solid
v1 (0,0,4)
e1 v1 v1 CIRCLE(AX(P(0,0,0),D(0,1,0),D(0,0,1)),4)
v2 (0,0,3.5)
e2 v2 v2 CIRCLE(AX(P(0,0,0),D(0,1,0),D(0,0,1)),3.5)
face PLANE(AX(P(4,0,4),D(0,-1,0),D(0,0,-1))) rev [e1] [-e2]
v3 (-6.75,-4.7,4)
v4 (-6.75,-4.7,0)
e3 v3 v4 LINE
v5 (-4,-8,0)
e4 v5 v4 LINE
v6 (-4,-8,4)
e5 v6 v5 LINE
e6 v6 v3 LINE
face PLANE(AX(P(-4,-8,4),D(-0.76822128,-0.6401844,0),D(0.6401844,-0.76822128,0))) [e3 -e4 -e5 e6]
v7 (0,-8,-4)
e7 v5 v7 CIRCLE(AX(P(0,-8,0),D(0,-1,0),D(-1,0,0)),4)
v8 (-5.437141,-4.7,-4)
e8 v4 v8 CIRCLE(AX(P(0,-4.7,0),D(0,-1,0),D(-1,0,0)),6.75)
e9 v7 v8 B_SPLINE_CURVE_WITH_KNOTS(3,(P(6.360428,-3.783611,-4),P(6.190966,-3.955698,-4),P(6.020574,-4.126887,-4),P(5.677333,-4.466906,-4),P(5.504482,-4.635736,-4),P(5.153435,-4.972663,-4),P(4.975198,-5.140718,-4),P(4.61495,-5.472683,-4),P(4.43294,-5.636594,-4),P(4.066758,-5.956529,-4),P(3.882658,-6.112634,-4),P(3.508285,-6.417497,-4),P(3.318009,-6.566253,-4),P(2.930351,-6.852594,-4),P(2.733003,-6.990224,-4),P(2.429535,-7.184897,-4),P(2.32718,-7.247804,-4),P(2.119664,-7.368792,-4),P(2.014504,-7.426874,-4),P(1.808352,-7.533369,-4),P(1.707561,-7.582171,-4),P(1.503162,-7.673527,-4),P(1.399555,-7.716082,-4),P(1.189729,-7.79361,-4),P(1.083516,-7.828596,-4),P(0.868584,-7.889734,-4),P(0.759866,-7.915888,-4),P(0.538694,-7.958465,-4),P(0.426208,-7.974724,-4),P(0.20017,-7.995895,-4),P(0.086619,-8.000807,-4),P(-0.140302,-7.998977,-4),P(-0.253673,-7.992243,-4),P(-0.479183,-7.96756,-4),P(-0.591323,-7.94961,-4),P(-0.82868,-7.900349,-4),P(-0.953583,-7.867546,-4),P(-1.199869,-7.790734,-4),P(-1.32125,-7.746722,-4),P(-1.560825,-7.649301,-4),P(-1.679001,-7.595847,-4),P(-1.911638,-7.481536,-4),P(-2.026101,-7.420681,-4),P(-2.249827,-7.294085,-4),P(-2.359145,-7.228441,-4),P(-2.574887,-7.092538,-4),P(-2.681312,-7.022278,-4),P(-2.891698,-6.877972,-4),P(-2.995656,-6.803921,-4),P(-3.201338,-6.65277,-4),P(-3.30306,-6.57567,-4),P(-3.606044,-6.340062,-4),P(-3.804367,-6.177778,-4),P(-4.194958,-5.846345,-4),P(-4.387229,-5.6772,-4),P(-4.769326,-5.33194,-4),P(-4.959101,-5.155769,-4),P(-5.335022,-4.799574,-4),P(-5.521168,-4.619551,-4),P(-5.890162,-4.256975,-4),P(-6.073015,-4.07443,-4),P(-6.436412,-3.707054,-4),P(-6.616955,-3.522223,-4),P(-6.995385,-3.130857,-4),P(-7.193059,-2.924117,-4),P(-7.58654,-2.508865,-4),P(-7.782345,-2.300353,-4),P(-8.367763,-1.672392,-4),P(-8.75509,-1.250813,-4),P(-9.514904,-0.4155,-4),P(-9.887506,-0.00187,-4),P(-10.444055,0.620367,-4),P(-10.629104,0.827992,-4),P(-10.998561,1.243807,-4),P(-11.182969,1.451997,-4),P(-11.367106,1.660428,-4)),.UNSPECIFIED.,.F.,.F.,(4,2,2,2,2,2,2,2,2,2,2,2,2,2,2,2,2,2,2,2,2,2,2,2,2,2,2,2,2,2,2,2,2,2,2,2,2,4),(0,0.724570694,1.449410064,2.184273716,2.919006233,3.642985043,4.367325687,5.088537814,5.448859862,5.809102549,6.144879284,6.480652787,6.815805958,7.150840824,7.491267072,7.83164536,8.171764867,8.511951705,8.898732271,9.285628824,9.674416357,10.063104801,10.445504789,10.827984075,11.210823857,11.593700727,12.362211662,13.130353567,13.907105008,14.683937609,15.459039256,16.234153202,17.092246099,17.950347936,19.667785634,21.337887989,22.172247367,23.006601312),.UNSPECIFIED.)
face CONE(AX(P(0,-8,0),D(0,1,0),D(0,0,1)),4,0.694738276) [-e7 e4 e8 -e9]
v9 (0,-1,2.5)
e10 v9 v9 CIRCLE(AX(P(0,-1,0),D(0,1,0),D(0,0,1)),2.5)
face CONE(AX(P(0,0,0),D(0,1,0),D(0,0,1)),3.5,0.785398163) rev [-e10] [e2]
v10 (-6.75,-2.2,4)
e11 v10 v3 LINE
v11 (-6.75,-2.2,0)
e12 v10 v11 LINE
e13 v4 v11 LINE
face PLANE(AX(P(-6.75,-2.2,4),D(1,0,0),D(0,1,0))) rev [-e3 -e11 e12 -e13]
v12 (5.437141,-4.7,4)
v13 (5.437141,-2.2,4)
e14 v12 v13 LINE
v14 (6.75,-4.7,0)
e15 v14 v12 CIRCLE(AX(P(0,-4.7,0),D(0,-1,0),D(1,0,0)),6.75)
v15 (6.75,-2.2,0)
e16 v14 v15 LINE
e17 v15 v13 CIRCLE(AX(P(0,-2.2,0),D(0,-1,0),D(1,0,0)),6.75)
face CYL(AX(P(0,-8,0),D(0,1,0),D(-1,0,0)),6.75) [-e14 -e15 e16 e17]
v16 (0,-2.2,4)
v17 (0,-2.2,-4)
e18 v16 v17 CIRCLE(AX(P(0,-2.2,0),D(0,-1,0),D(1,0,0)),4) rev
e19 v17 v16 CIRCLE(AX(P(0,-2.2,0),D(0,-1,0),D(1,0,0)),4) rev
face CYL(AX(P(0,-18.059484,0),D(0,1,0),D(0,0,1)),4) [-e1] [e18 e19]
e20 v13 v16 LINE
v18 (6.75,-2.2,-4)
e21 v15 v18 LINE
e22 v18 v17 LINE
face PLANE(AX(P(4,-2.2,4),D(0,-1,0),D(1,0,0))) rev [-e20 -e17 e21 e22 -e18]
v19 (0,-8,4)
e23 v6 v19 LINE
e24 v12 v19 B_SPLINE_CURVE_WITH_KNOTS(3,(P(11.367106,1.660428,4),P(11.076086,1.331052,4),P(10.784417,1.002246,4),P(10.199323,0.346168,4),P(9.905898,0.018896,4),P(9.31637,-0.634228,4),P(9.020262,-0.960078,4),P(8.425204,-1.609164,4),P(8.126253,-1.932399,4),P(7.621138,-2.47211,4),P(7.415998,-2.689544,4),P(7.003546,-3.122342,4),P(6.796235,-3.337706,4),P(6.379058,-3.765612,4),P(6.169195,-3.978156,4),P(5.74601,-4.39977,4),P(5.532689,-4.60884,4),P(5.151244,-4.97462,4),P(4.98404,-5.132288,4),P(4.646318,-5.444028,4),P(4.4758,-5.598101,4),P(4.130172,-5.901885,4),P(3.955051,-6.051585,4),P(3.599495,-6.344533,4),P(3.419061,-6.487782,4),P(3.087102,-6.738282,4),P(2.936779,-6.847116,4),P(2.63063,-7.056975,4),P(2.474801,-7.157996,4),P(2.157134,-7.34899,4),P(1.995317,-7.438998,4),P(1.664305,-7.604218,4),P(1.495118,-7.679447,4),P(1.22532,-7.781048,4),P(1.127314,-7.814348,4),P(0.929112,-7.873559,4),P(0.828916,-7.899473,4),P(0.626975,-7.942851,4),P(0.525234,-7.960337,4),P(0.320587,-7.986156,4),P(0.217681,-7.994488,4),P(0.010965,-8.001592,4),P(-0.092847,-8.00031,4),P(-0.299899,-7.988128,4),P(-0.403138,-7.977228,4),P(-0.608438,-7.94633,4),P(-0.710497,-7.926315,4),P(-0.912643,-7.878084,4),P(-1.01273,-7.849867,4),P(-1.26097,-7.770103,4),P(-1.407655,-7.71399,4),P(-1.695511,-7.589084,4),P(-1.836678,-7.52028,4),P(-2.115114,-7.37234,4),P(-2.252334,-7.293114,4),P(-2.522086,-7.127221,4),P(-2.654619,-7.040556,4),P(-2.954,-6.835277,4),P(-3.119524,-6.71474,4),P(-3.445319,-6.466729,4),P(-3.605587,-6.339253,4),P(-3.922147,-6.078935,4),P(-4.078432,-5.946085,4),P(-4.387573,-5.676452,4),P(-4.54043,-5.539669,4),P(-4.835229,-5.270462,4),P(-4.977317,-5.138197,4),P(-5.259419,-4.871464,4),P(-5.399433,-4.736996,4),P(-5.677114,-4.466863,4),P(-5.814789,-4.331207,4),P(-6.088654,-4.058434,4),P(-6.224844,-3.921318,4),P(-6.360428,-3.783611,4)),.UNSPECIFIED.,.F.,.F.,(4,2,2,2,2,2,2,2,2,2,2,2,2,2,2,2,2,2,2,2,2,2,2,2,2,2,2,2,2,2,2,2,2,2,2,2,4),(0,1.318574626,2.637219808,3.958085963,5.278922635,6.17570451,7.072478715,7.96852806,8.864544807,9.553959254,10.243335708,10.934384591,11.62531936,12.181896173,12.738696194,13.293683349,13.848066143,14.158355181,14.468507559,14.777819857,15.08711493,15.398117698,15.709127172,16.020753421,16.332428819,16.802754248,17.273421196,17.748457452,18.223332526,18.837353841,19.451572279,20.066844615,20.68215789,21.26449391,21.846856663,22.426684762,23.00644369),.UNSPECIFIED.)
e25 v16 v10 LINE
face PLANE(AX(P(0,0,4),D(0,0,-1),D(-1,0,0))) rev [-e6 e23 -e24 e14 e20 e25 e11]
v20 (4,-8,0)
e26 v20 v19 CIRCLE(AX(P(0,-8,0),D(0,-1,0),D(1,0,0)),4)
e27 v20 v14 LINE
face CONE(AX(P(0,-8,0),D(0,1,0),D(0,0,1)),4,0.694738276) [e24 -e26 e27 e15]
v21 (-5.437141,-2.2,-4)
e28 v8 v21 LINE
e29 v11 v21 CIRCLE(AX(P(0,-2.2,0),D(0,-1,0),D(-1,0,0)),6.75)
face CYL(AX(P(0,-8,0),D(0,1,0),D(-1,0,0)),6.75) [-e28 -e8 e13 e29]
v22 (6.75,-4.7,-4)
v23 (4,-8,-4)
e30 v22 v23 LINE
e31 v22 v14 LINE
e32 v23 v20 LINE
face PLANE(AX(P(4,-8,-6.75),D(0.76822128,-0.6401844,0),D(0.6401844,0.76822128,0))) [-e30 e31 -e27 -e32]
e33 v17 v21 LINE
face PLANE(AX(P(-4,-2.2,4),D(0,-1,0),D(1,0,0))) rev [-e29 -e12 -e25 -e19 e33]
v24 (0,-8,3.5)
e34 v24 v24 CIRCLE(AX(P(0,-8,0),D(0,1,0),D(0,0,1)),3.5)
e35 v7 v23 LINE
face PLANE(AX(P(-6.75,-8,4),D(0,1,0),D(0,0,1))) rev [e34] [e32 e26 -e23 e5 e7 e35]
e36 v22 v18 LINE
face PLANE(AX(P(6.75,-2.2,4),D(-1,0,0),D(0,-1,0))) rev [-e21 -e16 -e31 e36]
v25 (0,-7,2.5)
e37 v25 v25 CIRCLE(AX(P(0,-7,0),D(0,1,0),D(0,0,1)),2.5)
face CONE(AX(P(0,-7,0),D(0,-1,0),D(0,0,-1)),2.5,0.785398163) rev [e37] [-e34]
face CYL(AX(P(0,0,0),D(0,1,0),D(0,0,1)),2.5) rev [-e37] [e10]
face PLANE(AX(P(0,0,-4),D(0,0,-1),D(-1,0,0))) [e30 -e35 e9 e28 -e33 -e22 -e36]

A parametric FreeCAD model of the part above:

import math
import FreeCAD as App
import Part
import Sketcher
from FreeCAD import Vector

doc = App.newDocument("Part")
body = doc.addObject("PartDesign::Body", "Body")

# Sketch on XY plane
sketch1 = body.newObject("Sketcher::SketchObject", "Sketch")
sketch1.AttachmentSupport = (doc.getObject("XY_Plane"), [""])
sketch1.MapMode = "FlatFace"
sketch1.addGeometry([
    Part.LineSegment(Vector(4, 0, 0), Vector(-4, 0, 0)),  # 0
    Part.LineSegment(Vector(-4, 0, 0), Vector(-4, -2.2, 0)),  # 1
    Part.LineSegment(Vector(-4, -2.2, 0), Vector(-6.8, -2.2, 0)),  # 2
    Part.LineSegment(Vector(-6.8, -2.2, 0), Vector(-6.8, -8, 0)),  # 3
    Part.LineSegment(Vector(-6.8, -8, 0), Vector(6.8, -8, 0)),  # 4
    Part.LineSegment(Vector(6.8, -8, 0), Vector(6.8, -2.2, 0)),  # 5
    Part.LineSegment(Vector(6.8, -2.2, 0), Vector(4, -2.2, 0)),  # 6
    Part.LineSegment(Vector(4, -2.2, 0), Vector(4, 0, 0)),  # 7
], False)
sketch1.addConstraint([
    Sketcher.Constraint("Coincident", 0, 2, 1, 1),
    Sketcher.Constraint("Coincident", 1, 2, 2, 1),
    Sketcher.Constraint("Coincident", 2, 2, 3, 1),
    Sketcher.Constraint("Coincident", 3, 2, 4, 1),
    Sketcher.Constraint("Coincident", 4, 2, 5, 1),
    Sketcher.Constraint("Coincident", 5, 2, 6, 1),
    Sketcher.Constraint("Coincident", 6, 2, 7, 1),
    Sketcher.Constraint("Coincident", 7, 2, 0, 1),
    Sketcher.Constraint("Horizontal", 0),
    Sketcher.Constraint("Vertical", 1),
    Sketcher.Constraint("Horizontal", 2),
    Sketcher.Constraint("Vertical", 3),
    Sketcher.Constraint("Horizontal", 4),
    Sketcher.Constraint("Vertical", 5),
    Sketcher.Constraint("Horizontal", 6),
    Sketcher.Constraint("Vertical", 7),
    Sketcher.Constraint("Symmetric", 0, 2, 7, 2, -1, 1),
    Sketcher.Constraint("Symmetric", 2, 2, 5, 2, -2),
    Sketcher.Constraint("DistanceX", 0, 2, 0, 1, 8.0),
    Sketcher.Constraint("DistanceX", 4, 1, 4, 2, 13.5),
    Sketcher.Constraint("DistanceY", 1, 2, 1, 1, 2.2),
    Sketcher.Constraint("DistanceY", 3, 2, 3, 1, 5.8),
])
pad1 = body.newObject("PartDesign::Pad", "Pad")
pad1.Profile = sketch1
pad1.Length = 8
pad1.Midplane = True

# Sketch on YZ plane
sketch2 = body.newObject("Sketcher::SketchObject", "Sketch001")
sketch2.AttachmentSupport = (doc.getObject("YZ_Plane"), [""])
sketch2.MapMode = "FlatFace"
sketch2.addGeometry([
    Part.LineSegment(Vector(-8, 0, 0), Vector(0, 0, 0)),  # 0
    Part.LineSegment(Vector(0, 0, 0), Vector(0, 3.5, 0)),  # 1
    Part.LineSegment(Vector(0, 3.5, 0), Vector(-1, 2.5, 0)),  # 2
    Part.LineSegment(Vector(-1, 2.5, 0), Vector(-7, 2.5, 0)),  # 3
    Part.LineSegment(Vector(-7, 2.5, 0), Vector(-8, 3.5, 0)),  # 4
    Part.LineSegment(Vector(-8, 3.5, 0), Vector(-8, 0, 0)),  # 5
], False)
sketch2.addConstraint([
    Sketcher.Constraint("Coincident", 0, 2, 1, 1),
    Sketcher.Constraint("Coincident", 1, 2, 2, 1),
    Sketcher.Constraint("Coincident", 2, 2, 3, 1),
    Sketcher.Constraint("Coincident", 3, 2, 4, 1),
    Sketcher.Constraint("Coincident", 4, 2, 5, 1),
    Sketcher.Constraint("Coincident", 5, 2, 0, 1),
    Sketcher.Constraint("Horizontal", 0),
    Sketcher.Constraint("Vertical", 1),
    Sketcher.Constraint("Horizontal", 3),
    Sketcher.Constraint("Vertical", 5),
    Sketcher.Constraint("Coincident", 0, 2, -1, 1),
    Sketcher.Constraint("Perpendicular", 2, 4),
    Sketcher.Constraint("Horizontal", 1, 2, 4, 2),
    Sketcher.Constraint("Equal", 2, 4),
    Sketcher.Constraint("DistanceX", 0, 1, 0, 2, 8.0),
    Sketcher.Constraint("DistanceX", 3, 2, 3, 1, 6.0),
    Sketcher.Constraint("DistanceY", 1, 1, 1, 2, 3.5),
])
groove = body.newObject("PartDesign::Groove", "Groove")
groove.Profile = sketch2
groove.ReferenceAxis = (sketch2, ["H_Axis"])
groove.Angle = 360

# Sketch on XZ plane
sketch3 = body.newObject("Sketcher::SketchObject", "Sketch002")
sketch3.AttachmentSupport = (doc.getObject("XZ_Plane"), [""])
sketch3.MapMode = "FlatFace"
sketch3.addGeometry([
    Part.LineSegment(Vector(-9.5, -6.8, 0), Vector(-9.5, 6.8, 0)),  # 0
    Part.LineSegment(Vector(-9.5, 6.8, 0), Vector(9.5, 6.8, 0)),  # 1
    Part.LineSegment(Vector(9.5, 6.8, 0), Vector(9.5, -6.8, 0)),  # 2
    Part.LineSegment(Vector(9.5, -6.8, 0), Vector(-9.5, -6.8, 0)),  # 3
    Part.Circle(Vector(0, 0, 0), Vector(0, 0, 1), 4),  # 4
], False)
sketch3.addConstraint([
    Sketcher.Constraint("Coincident", 0, 2, 1, 1),
    Sketcher.Constraint("Coincident", 1, 2, 2, 1),
    Sketcher.Constraint("Coincident", 2, 2, 3, 1),
    Sketcher.Constraint("Coincident", 3, 2, 0, 1),
    Sketcher.Constraint("Vertical", 0),
    Sketcher.Constraint("Horizontal", 1),
    Sketcher.Constraint("Vertical", 2),
    Sketcher.Constraint("Horizontal", 3),
    Sketcher.Constraint("Coincident", 4, 3, -1, 1),
    Sketcher.Constraint("Symmetric", 0, 2, 2, 2, -1, 1),
    Sketcher.Constraint("Diameter", 4, 8.0),
    Sketcher.Constraint("DistanceX", 1, 1, 1, 2, 19.022),
    Sketcher.Constraint("DistanceY", 0, 1, 0, 2, 13.522),
])
pocket1 = body.newObject("PartDesign::Pocket", "Pocket")
pocket1.Profile = sketch3
pocket1.Length = 2.2
pocket1.Reversed = True

# Sketch on XZ plane
sketch4 = body.newObject("Sketcher::SketchObject", "Sketch003")
sketch4.AttachmentSupport = (doc.getObject("XZ_Plane"), [""])
sketch4.MapMode = "FlatFace"
sketch4.AttachmentOffset = App.Placement(Vector(0, 0, 2.2), App.Rotation())
sketch4.addGeometry([
    Part.LineSegment(Vector(-6.8, -4, 0), Vector(-6.8, 0, 0)),  # 0
    Part.ArcOfCircle(Part.Circle(Vector(0, 0, 0), Vector(0, 0, 1), 6.7), math.radians(180), math.radians(216)),  # 1
    Part.LineSegment(Vector(-5.4, -4, 0), Vector(-6.8, -4, 0)),  # 2
    Part.LineSegment(Vector(6.8, 4, 0), Vector(6.8, 0, 0)),  # 3
    Part.ArcOfCircle(Part.Circle(Vector(0, 0, 0), Vector(0, 0, 1), 6.7), math.radians(0), math.radians(36)),  # 4
    Part.LineSegment(Vector(5.4, 4, 0), Vector(6.8, 4, 0)),  # 5
], False)
sketch4.addConstraint([
    Sketcher.Constraint("Tangent", 0, 2, 1, 1),
    Sketcher.Constraint("Coincident", 1, 2, 2, 1),
    Sketcher.Constraint("Coincident", 2, 2, 0, 1),
    Sketcher.Constraint("Tangent", 3, 2, 4, 1),
    Sketcher.Constraint("Coincident", 4, 2, 5, 1),
    Sketcher.Constraint("Coincident", 5, 2, 3, 1),
    Sketcher.Constraint("Vertical", 0),
    Sketcher.Constraint("Horizontal", 2),
    Sketcher.Constraint("Vertical", 3),
    Sketcher.Constraint("Horizontal", 5),
    Sketcher.Constraint("Coincident", 1, 3, -1, 1),
    Sketcher.Constraint("Coincident", 4, 3, -1, 1),
    Sketcher.Constraint("Equal", 1, 4),
    Sketcher.Constraint("Equal", 2, 5),
    Sketcher.Constraint("DistanceY", 0, 1, 0, 2, 4.0),
    Sketcher.Constraint("Radius", 1, 6.75),
])
pocket2 = body.newObject("PartDesign::Pocket", "Pocket001")
pocket2.Profile = sketch4
pocket2.Type = "ThroughAll"
pocket2.Reversed = True

# Sketch on XY plane
sketch5 = body.newObject("Sketcher::SketchObject", "Sketch004")
sketch5.AttachmentSupport = (doc.getObject("XY_Plane"), [""])
sketch5.MapMode = "FlatFace"
sketch5.AttachmentOffset = App.Placement(Vector(0, 0, 4), App.Rotation())
sketch5.addGeometry([
    Part.LineSegment(Vector(-6.8, -4.7, 0), Vector(-6.8, -8, 0)),
    Part.LineSegment(Vector(-6.8, -8, 0), Vector(-4, -8, 0)),
    Part.LineSegment(Vector(-4, -8, 0), Vector(-6.8, -4.7, 0)),
], False)
sketch5.addConstraint([
    Sketcher.Constraint("Coincident", 0, 2, 1, 1),
    Sketcher.Constraint("Coincident", 1, 2, 2, 1),
    Sketcher.Constraint("Coincident", 2, 2, 0, 1),
    Sketcher.Constraint("Vertical", 0),
    Sketcher.Constraint("Horizontal", 1),
    Sketcher.Constraint("DistanceY", 0, 2, 0, 1, 3.3),
    Sketcher.Constraint("DistanceY", 0, 2, -1, 1, 8.0),
    Sketcher.Constraint("DistanceX", 1, 2, -1, 1, 4.0),
    Sketcher.Constraint("DistanceX", 1, 1, 1, 2, 2.75),
])

# Sketch on XZ plane
sketch6 = body.newObject("Sketcher::SketchObject", "Sketch005")
sketch6.AttachmentSupport = (doc.getObject("XZ_Plane"), [""])
sketch6.MapMode = "FlatFace"
sketch6.AttachmentOffset = App.Placement(Vector(0, 0, 8), App.Rotation())
sketch6.addGeometry([
    Part.LineSegment(Vector(0, 7, 0), Vector(-7, 7, 0)),  # 0
    Part.LineSegment(Vector(-7, 7, 0), Vector(-7, 0, 0)),  # 1
    Part.ArcOfCircle(Part.Circle(Vector(0, 0, 0), Vector(0, 0, 1), 7), math.radians(180), math.radians(270)),  # 2
    Part.LineSegment(Vector(0, -7, 0), Vector(7, -7, 0)),  # 3
    Part.LineSegment(Vector(7, -7, 0), Vector(7, 0, 0)),  # 4
    Part.ArcOfCircle(Part.Circle(Vector(0, 0, 0), Vector(0, 0, 1), 7), math.radians(0), math.radians(90)),  # 5
], False)
sketch6.addConstraint([
    Sketcher.Constraint("Coincident", 0, 2, 1, 1),
    Sketcher.Constraint("Tangent", 1, 2, 2, 1),
    Sketcher.Constraint("Tangent", 2, 2, 3, 1),
    Sketcher.Constraint("Coincident", 3, 2, 4, 1),
    Sketcher.Constraint("Tangent", 4, 2, 5, 1),
    Sketcher.Constraint("Tangent", 5, 2, 0, 1),
    Sketcher.Constraint("Horizontal", 0),
    Sketcher.Constraint("Vertical", 1),
    Sketcher.Constraint("Horizontal", 3),
    Sketcher.Constraint("Vertical", 4),
    Sketcher.Constraint("Coincident", 2, 3, -1, 1),
    Sketcher.Constraint("Coincident", 5, 3, -1, 1),
    Sketcher.Constraint("Equal", 2, 5),
    Sketcher.Constraint("Radius", 2, 6.75),
])
doc.recompute()

subtractivepipe = body.newObject("PartDesign::SubtractivePipe", "SubtractivePipe")
subtractivepipe.Profile = sketch5
subtractivepipe.Spine = (sketch6, ["Edge1", "Edge2", "Edge3", "Edge4", "Edge5", "Edge6"])
subtractivepipe.Transition = "Right corner"

doc.recompute()
